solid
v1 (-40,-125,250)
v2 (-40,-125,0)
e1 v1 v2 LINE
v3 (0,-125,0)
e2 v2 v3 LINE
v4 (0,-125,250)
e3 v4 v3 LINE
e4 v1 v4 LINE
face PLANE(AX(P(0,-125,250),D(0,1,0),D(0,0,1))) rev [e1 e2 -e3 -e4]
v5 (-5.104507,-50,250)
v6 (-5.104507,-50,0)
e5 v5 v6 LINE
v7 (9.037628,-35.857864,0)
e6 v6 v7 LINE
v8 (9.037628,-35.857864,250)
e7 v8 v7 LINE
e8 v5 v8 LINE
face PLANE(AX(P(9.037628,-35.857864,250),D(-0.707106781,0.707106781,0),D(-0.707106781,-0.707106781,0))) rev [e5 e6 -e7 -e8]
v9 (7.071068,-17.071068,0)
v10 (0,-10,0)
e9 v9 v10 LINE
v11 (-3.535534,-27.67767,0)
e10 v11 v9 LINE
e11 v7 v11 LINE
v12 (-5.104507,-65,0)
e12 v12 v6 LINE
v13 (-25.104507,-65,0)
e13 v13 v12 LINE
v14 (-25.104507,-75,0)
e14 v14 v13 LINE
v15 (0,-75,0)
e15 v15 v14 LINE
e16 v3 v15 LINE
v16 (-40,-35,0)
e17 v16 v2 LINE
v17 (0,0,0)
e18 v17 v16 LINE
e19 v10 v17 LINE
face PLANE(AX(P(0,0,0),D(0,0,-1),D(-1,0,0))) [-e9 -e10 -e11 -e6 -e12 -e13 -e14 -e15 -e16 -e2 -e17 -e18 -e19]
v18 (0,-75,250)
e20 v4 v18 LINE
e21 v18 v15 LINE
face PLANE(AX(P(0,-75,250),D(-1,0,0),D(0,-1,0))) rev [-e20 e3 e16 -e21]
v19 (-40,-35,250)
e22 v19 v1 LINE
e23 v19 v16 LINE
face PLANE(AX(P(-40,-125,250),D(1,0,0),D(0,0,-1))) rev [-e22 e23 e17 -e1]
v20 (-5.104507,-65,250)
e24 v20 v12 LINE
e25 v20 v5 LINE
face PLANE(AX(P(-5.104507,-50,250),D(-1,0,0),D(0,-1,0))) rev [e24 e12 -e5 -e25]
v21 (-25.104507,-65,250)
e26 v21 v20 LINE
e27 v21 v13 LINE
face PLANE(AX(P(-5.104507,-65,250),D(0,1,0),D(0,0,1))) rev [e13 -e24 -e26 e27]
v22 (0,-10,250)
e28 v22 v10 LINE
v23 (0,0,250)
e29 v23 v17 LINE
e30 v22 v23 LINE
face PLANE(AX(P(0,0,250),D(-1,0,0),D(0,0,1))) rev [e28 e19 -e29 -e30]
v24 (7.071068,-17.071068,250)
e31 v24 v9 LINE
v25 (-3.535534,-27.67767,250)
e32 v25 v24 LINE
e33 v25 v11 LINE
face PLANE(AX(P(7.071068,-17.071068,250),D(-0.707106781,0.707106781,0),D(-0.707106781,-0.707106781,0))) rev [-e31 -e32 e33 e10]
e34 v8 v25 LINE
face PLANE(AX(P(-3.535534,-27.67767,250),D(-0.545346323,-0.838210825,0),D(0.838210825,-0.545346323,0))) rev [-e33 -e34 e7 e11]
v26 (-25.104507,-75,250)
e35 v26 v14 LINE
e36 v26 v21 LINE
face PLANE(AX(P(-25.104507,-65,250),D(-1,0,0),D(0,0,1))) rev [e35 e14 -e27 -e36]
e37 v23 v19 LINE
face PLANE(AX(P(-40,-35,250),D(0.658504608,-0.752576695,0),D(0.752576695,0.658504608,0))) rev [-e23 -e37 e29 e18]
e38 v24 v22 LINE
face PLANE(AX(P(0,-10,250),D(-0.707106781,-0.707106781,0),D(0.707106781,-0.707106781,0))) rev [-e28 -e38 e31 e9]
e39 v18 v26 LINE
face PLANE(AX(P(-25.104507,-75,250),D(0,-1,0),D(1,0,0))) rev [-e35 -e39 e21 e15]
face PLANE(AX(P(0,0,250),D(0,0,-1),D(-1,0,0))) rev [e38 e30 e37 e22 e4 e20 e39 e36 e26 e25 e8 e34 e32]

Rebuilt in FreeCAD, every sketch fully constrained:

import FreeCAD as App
import Part
import Sketcher

V = App.Vector
Q = App.Units.Quantity


def add_polygon(sketch, points):
    """Adds a closed chain of lines whose ends are joined by coincident constraints."""
    first, n = sketch.GeometryCount, len(points)
    for a, b in zip(points, points[1:] + points[:1]):
        sketch.addGeometry(Part.LineSegment(App.Vector(*a, 0), App.Vector(*b, 0)), False)
    for i in range(n):
        sketch.addConstraint(Sketcher.Constraint("Coincident", first + i, 2, first + (i + 1) % n, 1))

doc = App.newDocument("Part")
body = doc.addObject("PartDesign::Body", "Body")

# Sketch on XY plane
sketch1 = body.newObject("Sketcher::SketchObject", "Sketch")
sketch1.AttachmentSupport = (doc.getObject("XY_Plane"), [""])
sketch1.MapMode = "FlatFace"
add_polygon(sketch1, [(0, -10), (0, 0), (-40, -35), (-40, -125), (0, -125), (0, -75), (-25, -75), (-25, -65), (-5, -65), (-5, -50), (9, -36), (-4, -28), (7, -17)])  # lines 0-12
sketch1.addConstraint(Sketcher.Constraint("Vertical", 0))
sketch1.addConstraint(Sketcher.Constraint("Vertical", 2))
sketch1.addConstraint(Sketcher.Constraint("Horizontal", 3))
sketch1.addConstraint(Sketcher.Constraint("Vertical", 4))
sketch1.addConstraint(Sketcher.Constraint("Horizontal", 5))
sketch1.addConstraint(Sketcher.Constraint("Vertical", 6))
sketch1.addConstraint(Sketcher.Constraint("Horizontal", 7))
sketch1.addConstraint(Sketcher.Constraint("Vertical", 8))
sketch1.addConstraint(Sketcher.Constraint("Coincident", 0, 2, -1, 1))
sketch1.addConstraint(Sketcher.Constraint("PointOnObject", 3, 2, -2))
sketch1.addConstraint(Sketcher.Constraint("Parallel", 9, 11))
sketch1.addConstraint(Sketcher.Constraint("Perpendicular", 11, 12))
sketch1.addConstraint(Sketcher.Constraint("Equal", 0, 6))
sketch1.addConstraint(Sketcher.Constraint("Equal", 10, 11))
sketch1.addConstraint(Sketcher.Constraint("DistanceX", 3, 1, 3, 2, 40.0))
sketch1.addConstraint(Sketcher.Constraint("DistanceX", 7, 1, 7, 2, 20.0))
sketch1.addConstraint(Sketcher.Constraint("DistanceY", 0, 1, 0, 2, 10.0))
sketch1.addConstraint(Sketcher.Constraint("DistanceY", 2, 2, 2, 1, 90.0))
sketch1.addConstraint(Sketcher.Constraint("DistanceY", 4, 1, 4, 2, 50.0))
sketch1.addConstraint(Sketcher.Constraint("DistanceY", 8, 1, 8, 2, 15.0))
sketch1.addConstraint(Sketcher.Constraint("Angle", 9, Q("45 deg")))
sketch1.addConstraint(Sketcher.Constraint("Distance", 9, 20.0))
sketch1.addConstraint(Sketcher.Constraint("Distance", 10, 15.0))
sketch1.addConstraint(Sketcher.Constraint("Distance", 12, 10.0))
sketch1.addConstraint(Sketcher.Constraint("DistanceY", 1, 2, -1, 1, 35.0))
pad1 = body.newObject("PartDesign::Pad", "Pad")
pad1.Profile = sketch1
pad1.Length = 250

doc.recompute()
